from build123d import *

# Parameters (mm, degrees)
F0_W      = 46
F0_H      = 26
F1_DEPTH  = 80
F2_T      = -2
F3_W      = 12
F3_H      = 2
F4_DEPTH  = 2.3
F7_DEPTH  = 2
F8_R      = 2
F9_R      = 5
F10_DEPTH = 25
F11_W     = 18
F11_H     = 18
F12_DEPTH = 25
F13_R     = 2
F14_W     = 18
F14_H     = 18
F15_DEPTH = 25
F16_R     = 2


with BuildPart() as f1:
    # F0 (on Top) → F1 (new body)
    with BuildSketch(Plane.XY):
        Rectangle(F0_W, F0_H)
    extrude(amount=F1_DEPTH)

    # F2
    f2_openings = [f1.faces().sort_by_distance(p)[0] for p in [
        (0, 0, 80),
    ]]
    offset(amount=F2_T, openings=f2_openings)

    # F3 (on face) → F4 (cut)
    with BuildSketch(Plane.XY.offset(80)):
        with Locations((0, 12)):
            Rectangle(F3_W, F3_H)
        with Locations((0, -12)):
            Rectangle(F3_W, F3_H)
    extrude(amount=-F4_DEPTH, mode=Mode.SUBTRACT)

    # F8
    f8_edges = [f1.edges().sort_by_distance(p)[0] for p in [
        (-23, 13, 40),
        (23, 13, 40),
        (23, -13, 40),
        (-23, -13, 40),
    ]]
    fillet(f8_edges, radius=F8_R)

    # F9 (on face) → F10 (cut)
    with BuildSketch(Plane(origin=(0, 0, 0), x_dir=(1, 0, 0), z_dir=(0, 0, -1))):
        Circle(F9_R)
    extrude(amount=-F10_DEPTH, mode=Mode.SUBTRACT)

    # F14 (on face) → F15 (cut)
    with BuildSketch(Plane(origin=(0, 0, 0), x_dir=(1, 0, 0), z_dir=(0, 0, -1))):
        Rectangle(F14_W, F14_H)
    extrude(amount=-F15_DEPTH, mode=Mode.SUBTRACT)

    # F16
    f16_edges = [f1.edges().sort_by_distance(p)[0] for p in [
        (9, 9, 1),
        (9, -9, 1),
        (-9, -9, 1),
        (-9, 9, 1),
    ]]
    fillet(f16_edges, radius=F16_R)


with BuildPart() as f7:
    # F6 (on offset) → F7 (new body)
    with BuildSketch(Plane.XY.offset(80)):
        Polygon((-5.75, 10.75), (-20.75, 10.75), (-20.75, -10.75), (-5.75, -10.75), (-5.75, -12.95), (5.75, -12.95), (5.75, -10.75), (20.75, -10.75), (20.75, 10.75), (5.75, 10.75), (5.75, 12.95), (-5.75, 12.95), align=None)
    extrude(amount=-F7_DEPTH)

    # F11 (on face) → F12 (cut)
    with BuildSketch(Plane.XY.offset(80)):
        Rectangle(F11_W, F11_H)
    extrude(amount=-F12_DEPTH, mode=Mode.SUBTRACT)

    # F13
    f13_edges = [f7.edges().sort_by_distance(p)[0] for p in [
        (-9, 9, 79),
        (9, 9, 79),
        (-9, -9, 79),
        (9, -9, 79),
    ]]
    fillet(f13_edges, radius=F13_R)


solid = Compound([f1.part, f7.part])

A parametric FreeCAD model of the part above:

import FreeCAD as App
import Part
import Sketcher


def edges_at(feature, points):
    """Names of the edges that pass closest to the given points."""
    edges = feature.Shape.Edges
    near = lambda p: min(range(len(edges)), key=lambda i: edges[i].distToShape(Part.Vertex(*p))[0])
    return sorted({f"Edge{near(p) + 1}" for p in points})


def faces_at(feature, points):
    """Names of the faces that lie closest to the given points."""
    faces = feature.Shape.Faces
    near = lambda p: min(range(len(faces)), key=lambda i: faces[i].distToShape(Part.Vertex(*p))[0])
    return sorted({f"Face{near(p) + 1}" for p in points})


def add_polygon(sketch, points):
    """Adds a closed chain of lines whose ends are joined by coincident constraints."""
    first, n = sketch.GeometryCount, len(points)
    for a, b in zip(points, points[1:] + points[:1]):
        sketch.addGeometry(Part.LineSegment(App.Vector(*a, 0), App.Vector(*b, 0)), False)
    for i in range(n):
        sketch.addConstraint(Sketcher.Constraint("Coincident", first + i, 2, first + (i + 1) % n, 1))

doc = App.newDocument("Part")
params = doc.addObject("Spreadsheet::Sheet", "Params")
for row, (alias, value) in enumerate([
    ("sketch1_width", "46 mm"),
    ("sketch1_height", "26 mm"),
    ("pad1_length", "80 mm"),
    ("thickness_wall", "2 mm"),
    ("sketch2_width", "12 mm"),
    ("sketch2_height", "2 mm"),
    ("pocket1_length", "2.3 mm"),
    ("fillet_radius", "2 mm"),
    ("sketch3_diameter", "10 mm"),
    ("pocket2_length", "25 mm"),
    ("sketch4_width", "18 mm"),
    ("pocket3_length", "25 mm"),
    ("fillet2_radius", "2 mm"),
    ("sketch5_width", "15 mm"),
    ("sketch5_width2", "11.5 mm"),
    ("sketch5_height", "21.5 mm"),
    ("sketch5_height2", "2.2 mm"),
    ("pad2_length", "2 mm"),
    ("sketch6_width", "18 mm"),
    ("pocket4_length", "25 mm"),
    ("fillet3_radius", "2 mm"),
], start=1):
    params.set(f"A{row}", alias)
    params.set(f"B{row}", "=" + value)
    params.setAlias(f"B{row}", alias)

body = doc.addObject("PartDesign::Body", "Body")

sketch1 = body.newObject("Sketcher::SketchObject", "Sketch")
sketch1.AttachmentSupport = (doc.getObject("XY_Plane"), [""])
sketch1.MapMode = "FlatFace"
add_polygon(sketch1, [(-23, 13), (-23, -13), (23, -13), (23, 13)])
sketch1.addConstraint([
    Sketcher.Constraint("Vertical", 0),
    Sketcher.Constraint("Horizontal", 1),
    Sketcher.Constraint("Vertical", 2),
    Sketcher.Constraint("Horizontal", 3),
    Sketcher.Constraint("Symmetric", 0, 2, 2, 2, -1, 1),
    Sketcher.Constraint("DistanceX", 1, 1, 1, 2, 46.0),
    Sketcher.Constraint("DistanceY", 0, 2, 0, 1, 26.0),
])
sketch1.setExpression("Constraints[9]", "Params.sketch1_width")
sketch1.setExpression("Constraints[10]", "Params.sketch1_height")
pad1 = body.newObject("PartDesign::Pad", "Pad")
pad1.Profile = sketch1
pad1.setExpression("Length", "Params.pad1_length")
doc.recompute()

thickness = body.newObject("PartDesign::Thickness", "Thickness")
thickness.Base = (pad1, faces_at(pad1, [(0, 0, 80)]))
thickness.setExpression("Value", "Params.thickness_wall")
thickness.Reversed = True
thickness.Join = "Arc"

sketch2 = body.newObject("Sketcher::SketchObject", "Sketch001")
sketch2.AttachmentSupport = (doc.getObject("XY_Plane"), [""])
sketch2.MapMode = "FlatFace"
sketch2.AttachmentOffset = App.Placement(App.Vector(0, 0, 80), App.Rotation())
add_polygon(sketch2, [(-6, 13), (-6, 11), (6, 11), (6, 13)])
add_polygon(sketch2, [(-6, -11), (-6, -13), (6, -13), (6, -11)])
sketch2.addConstraint([
    Sketcher.Constraint("Vertical", 0),
    Sketcher.Constraint("Horizontal", 1),
    Sketcher.Constraint("Vertical", 2),
    Sketcher.Constraint("Horizontal", 3),
    Sketcher.Constraint("Vertical", 4),
    Sketcher.Constraint("Horizontal", 5),
    Sketcher.Constraint("Vertical", 6),
    Sketcher.Constraint("Horizontal", 7),
    Sketcher.Constraint("Symmetric", 2, 2, 4, 2, -1, 1),
    Sketcher.Constraint("Symmetric", 0, 2, 6, 2, -1, 1),
    Sketcher.Constraint("Vertical", 3, 2, 4, 2),
    Sketcher.Constraint("DistanceX", 1, 1, 1, 2, 12.0),
    Sketcher.Constraint("DistanceY", 0, 2, 0, 1, 2.0),
    Sketcher.Constraint("DistanceY", -1, 1, 0, 2, 11.0),
])
sketch2.setExpression("Constraints[19]", "Params.sketch2_width")
sketch2.setExpression("Constraints[20]", "Params.sketch2_height")
pocket1 = body.newObject("PartDesign::Pocket", "Pocket")
pocket1.Profile = sketch2
pocket1.setExpression("Length", "Params.pocket1_length")
doc.recompute()

fillet = body.newObject("PartDesign::Fillet", "Fillet")
fillet.Base = (pocket1, edges_at(pocket1, [
    (-23, 13, 40),
    (23, 13, 40),
    (23, -13, 40),
    (-23, -13, 40),
]))
fillet.setExpression("Radius", "Params.fillet_radius")

sketch3 = body.newObject("Sketcher::SketchObject", "Sketch002")
sketch3.AttachmentSupport = (doc.getObject("XY_Plane"), [""])
sketch3.MapMode = "FlatFace"
sketch3.addGeometry(Part.Circle(App.Vector(0, 0, 0), App.Vector(0, 0, 1), 5), False)
sketch3.addConstraint([
    Sketcher.Constraint("Coincident", 0, 3, -1, 1),
    Sketcher.Constraint("Diameter", 0, 10.0),
])
sketch3.setExpression("Constraints[1]", "Params.sketch3_diameter")
pocket2 = body.newObject("PartDesign::Pocket", "Pocket001")
pocket2.Profile = sketch3
pocket2.setExpression("Length", "Params.pocket2_length")
pocket2.Reversed = True

sketch4 = body.newObject("Sketcher::SketchObject", "Sketch003")
sketch4.AttachmentSupport = (doc.getObject("XY_Plane"), [""])
sketch4.MapMode = "FlatFace"
add_polygon(sketch4, [(-9, -9), (-9, 9), (9, 9), (9, -9)])
sketch4.addConstraint([
    Sketcher.Constraint("Vertical", 0),
    Sketcher.Constraint("Horizontal", 1),
    Sketcher.Constraint("Vertical", 2),
    Sketcher.Constraint("Horizontal", 3),
    Sketcher.Constraint("Symmetric", 0, 2, 2, 2, -1, 1),
    Sketcher.Constraint("Equal", 3, 0),
    Sketcher.Constraint("DistanceX", 1, 1, 1, 2, 18.0),
])
sketch4.setExpression("Constraints[10]", "Params.sketch4_width")
pocket3 = body.newObject("PartDesign::Pocket", "Pocket002")
pocket3.Profile = sketch4
pocket3.setExpression("Length", "Params.pocket3_length")
pocket3.Reversed = True
doc.recompute()

fillet2 = body.newObject("PartDesign::Fillet", "Fillet001")
fillet2.Base = (pocket3, edges_at(pocket3, [
    (9, 9, 1),
    (9, -9, 1),
    (-9, -9, 1),
    (-9, 9, 1),
]))
fillet2.setExpression("Radius", "Params.fillet2_radius")
body2 = doc.addObject("PartDesign::Body", "Body001")

sketch5 = body2.newObject("Sketcher::SketchObject", "Sketch004")
sketch5.AttachmentSupport = (doc.getObject("XY_Plane001"), [""])
sketch5.MapMode = "FlatFace"
sketch5.AttachmentOffset = App.Placement(App.Vector(0, 0, 80), App.Rotation())
add_polygon(sketch5, [(-5.8, 10.8), (-20.8, 10.8), (-20.8, -10.8), (-5.8, -10.8), (-5.8, -12.9), (5.8, -12.9), (5.8, -10.8), (20.8, -10.8), (20.8, 10.8), (5.8, 10.8), (5.8, 12.9), (-5.8, 12.9)])
sketch5.addConstraint([
    Sketcher.Constraint("Horizontal", 0),
    Sketcher.Constraint("Vertical", 1),
    Sketcher.Constraint("Horizontal", 2),
    Sketcher.Constraint("Vertical", 3),
    Sketcher.Constraint("Horizontal", 4),
    Sketcher.Constraint("Vertical", 5),
    Sketcher.Constraint("Horizontal", 6),
    Sketcher.Constraint("Vertical", 7),
    Sketcher.Constraint("Horizontal", 8),
    Sketcher.Constraint("Vertical", 9),
    Sketcher.Constraint("Horizontal", 10),
    Sketcher.Constraint("Vertical", 11),
    Sketcher.Constraint("Symmetric", 0, 2, 6, 2, -1, 1),
    Sketcher.Constraint("Symmetric", 2, 2, 8, 2, -1, 1),
    Sketcher.Constraint("Symmetric", 4, 2, 10, 2, -1, 1),
    Sketcher.Constraint("Symmetric", 2, 2, 5, 2, -2),
    Sketcher.Constraint("DistanceX", 0, 2, 0, 1, 15.0),
    Sketcher.Constraint("DistanceX", 4, 1, 4, 2, 11.5),
    Sketcher.Constraint("DistanceY", 1, 2, 1, 1, 21.5),
    Sketcher.Constraint("DistanceY", 3, 2, 3, 1, 2.2),
])
sketch5.setExpression("Constraints[28]", "Params.sketch5_width")
sketch5.setExpression("Constraints[29]", "Params.sketch5_width2")
sketch5.setExpression("Constraints[30]", "Params.sketch5_height")
sketch5.setExpression("Constraints[31]", "Params.sketch5_height2")
pad2 = body2.newObject("PartDesign::Pad", "Pad001")
pad2.Profile = sketch5
pad2.setExpression("Length", "Params.pad2_length")
pad2.Reversed = True

sketch6 = body2.newObject("Sketcher::SketchObject", "Sketch005")
sketch6.AttachmentSupport = (doc.getObject("XY_Plane001"), [""])
sketch6.MapMode = "FlatFace"
sketch6.AttachmentOffset = App.Placement(App.Vector(0, 0, 80), App.Rotation())
add_polygon(sketch6, [(-9, 9), (-9, -9), (9, -9), (9, 9)])
sketch6.addConstraint([
    Sketcher.Constraint("Vertical", 0),
    Sketcher.Constraint("Horizontal", 1),
    Sketcher.Constraint("Vertical", 2),
    Sketcher.Constraint("Horizontal", 3),
    Sketcher.Constraint("Symmetric", 0, 2, 2, 2, -1, 1),
    Sketcher.Constraint("Equal", 3, 0),
    Sketcher.Constraint("DistanceX", 1, 1, 1, 2, 18.0),
])
sketch6.setExpression("Constraints[10]", "Params.sketch6_width")
pocket4 = body2.newObject("PartDesign::Pocket", "Pocket003")
pocket4.Profile = sketch6
pocket4.setExpression("Length", "Params.pocket4_length")
doc.recompute()

fillet3 = body2.newObject("PartDesign::Fillet", "Fillet002")
fillet3.Base = (pocket4, edges_at(pocket4, [
    (-9, 9, 79),
    (9, 9, 79),
    (-9, -9, 79),
    (9, -9, 79),
]))
fillet3.setExpression("Radius", "Params.fillet3_radius")

doc.recompute()
